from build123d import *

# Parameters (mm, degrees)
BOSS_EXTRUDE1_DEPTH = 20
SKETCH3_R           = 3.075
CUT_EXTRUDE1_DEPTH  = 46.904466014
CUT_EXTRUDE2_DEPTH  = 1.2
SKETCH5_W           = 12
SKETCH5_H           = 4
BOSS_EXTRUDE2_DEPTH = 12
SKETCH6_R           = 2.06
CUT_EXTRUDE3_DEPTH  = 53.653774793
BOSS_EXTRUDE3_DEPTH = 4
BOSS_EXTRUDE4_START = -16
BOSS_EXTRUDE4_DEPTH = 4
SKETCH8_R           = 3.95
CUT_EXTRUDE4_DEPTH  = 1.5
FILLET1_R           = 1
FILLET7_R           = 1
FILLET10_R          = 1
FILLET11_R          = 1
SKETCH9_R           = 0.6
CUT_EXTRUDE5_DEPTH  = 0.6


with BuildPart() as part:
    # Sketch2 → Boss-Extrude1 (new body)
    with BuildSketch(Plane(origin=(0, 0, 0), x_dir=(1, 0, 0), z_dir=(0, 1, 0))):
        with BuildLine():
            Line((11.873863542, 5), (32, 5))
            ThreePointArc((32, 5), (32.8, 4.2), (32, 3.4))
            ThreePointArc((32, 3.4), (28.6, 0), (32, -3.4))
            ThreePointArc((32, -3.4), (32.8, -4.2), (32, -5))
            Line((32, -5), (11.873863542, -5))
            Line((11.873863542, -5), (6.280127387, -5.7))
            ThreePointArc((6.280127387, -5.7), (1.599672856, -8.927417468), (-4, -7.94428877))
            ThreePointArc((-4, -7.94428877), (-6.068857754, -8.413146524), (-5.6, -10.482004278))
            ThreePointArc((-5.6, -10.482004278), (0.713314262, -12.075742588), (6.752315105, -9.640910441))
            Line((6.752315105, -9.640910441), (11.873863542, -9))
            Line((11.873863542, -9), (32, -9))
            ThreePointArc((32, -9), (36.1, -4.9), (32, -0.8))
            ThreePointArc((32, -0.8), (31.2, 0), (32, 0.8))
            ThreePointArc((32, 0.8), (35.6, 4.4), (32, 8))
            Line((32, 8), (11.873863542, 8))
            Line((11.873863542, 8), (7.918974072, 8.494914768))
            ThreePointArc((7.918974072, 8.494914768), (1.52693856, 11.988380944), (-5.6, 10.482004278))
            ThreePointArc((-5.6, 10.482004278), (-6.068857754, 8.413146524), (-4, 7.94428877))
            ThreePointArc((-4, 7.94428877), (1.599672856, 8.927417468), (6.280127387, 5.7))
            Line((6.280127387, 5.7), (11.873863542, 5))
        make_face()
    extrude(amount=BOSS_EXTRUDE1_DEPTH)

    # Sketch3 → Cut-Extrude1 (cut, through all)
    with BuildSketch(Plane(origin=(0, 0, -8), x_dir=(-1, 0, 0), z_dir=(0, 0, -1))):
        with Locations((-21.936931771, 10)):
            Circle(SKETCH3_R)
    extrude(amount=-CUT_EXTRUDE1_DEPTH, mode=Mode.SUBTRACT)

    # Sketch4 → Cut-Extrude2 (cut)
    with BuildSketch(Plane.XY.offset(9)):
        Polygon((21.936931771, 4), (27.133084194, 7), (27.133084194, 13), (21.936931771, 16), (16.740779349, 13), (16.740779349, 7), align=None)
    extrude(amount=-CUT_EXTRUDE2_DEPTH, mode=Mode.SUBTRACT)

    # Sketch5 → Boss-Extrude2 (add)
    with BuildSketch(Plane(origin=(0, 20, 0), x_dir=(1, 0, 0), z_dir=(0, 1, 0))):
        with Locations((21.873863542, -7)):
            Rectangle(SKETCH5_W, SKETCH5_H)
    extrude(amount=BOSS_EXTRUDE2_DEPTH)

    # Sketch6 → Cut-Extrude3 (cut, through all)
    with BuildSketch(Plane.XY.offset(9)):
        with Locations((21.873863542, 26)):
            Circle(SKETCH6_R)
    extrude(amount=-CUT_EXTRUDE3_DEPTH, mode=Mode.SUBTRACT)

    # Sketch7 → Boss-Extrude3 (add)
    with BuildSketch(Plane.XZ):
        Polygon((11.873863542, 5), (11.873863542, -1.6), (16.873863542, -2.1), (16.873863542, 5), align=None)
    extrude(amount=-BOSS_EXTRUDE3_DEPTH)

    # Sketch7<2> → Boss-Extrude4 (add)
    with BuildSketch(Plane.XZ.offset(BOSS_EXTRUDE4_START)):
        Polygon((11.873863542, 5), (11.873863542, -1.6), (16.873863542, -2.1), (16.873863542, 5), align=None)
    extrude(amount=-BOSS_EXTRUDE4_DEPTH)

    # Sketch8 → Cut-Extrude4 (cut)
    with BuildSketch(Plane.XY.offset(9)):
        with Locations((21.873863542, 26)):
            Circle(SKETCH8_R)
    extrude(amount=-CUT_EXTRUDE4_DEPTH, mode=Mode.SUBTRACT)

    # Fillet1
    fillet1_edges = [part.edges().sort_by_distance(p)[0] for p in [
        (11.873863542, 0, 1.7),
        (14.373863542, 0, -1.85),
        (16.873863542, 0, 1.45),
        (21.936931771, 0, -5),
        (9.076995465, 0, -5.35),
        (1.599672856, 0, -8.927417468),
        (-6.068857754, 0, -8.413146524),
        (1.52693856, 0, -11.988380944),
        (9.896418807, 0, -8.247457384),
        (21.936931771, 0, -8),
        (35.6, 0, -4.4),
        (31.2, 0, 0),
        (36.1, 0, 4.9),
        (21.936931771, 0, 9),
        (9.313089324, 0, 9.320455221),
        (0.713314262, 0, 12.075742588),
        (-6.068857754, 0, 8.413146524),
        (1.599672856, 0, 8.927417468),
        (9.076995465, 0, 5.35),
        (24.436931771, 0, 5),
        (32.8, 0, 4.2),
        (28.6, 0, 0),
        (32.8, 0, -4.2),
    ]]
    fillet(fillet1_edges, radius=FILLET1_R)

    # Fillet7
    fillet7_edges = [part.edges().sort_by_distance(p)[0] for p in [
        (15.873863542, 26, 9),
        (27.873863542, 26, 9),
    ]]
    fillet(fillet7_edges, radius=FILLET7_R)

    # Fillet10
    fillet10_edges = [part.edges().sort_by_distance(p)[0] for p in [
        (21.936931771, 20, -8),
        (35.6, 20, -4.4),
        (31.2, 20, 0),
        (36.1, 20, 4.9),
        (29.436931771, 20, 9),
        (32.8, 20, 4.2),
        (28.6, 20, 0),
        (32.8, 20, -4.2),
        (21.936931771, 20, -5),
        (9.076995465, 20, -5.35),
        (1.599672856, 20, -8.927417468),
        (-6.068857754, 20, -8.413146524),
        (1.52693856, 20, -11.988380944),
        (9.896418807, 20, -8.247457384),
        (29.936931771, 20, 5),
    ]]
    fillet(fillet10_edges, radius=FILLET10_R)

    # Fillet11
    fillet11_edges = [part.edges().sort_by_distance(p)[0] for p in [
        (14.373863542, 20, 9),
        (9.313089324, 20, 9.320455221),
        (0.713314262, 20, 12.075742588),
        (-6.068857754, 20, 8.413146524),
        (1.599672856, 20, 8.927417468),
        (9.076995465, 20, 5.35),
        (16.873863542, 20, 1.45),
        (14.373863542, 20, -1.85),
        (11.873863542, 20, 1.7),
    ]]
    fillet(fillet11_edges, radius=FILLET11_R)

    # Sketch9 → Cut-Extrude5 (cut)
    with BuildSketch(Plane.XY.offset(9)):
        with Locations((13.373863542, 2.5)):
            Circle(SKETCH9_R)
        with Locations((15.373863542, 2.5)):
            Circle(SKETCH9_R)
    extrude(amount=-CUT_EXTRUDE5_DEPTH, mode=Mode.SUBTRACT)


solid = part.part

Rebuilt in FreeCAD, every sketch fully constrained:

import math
import FreeCAD as App
import Part
import Sketcher

V = App.Vector
Q = App.Units.Quantity


def edges_at(feature, points):
    """Names of the edges that pass closest to the given points."""
    edges = feature.Shape.Edges
    near = lambda p: min(range(len(edges)), key=lambda i: edges[i].distToShape(Part.Vertex(*p))[0])
    return sorted({f"Edge{near(p) + 1}" for p in points})

doc = App.newDocument("Part")
body = doc.addObject("PartDesign::Body", "Body")

# Sketch on XZ plane
sketch1 = body.newObject("Sketcher::SketchObject", "Sketch")
sketch1.AttachmentSupport = (doc.getObject("XZ_Plane"), [""])
sketch1.MapMode = "FlatFace"
sketch1.addGeometry(Part.LineSegment(V(11.9, -5, 0), V(32, -5, 0)), False)
sketch1.addGeometry(Part.ArcOfCircle(Part.Circle(V(32, -4.2, 0), V(0, 0, 1), 0.8), math.radians(-90), math.radians(90)), False)
sketch1.addGeometry(Part.ArcOfCircle(Part.Circle(V(32, 0, 0), V(0, 0, 1), 3.4), math.radians(90), math.radians(270)), False)
sketch1.addGeometry(Part.ArcOfCircle(Part.Circle(V(32, 4.2, 0), V(0, 0, 1), 0.8), math.radians(-90), math.radians(90)), False)
sketch1.addGeometry(Part.LineSegment(V(32, 5, 0), V(11.9, 5, 0)), False)
sketch1.addGeometry(Part.LineSegment(V(11.9, 5, 0), V(6.3, 5.7, 0)), False)
sketch1.addGeometry(Part.ArcOfCircle(Part.Circle(V(0, 1.6, 0), V(0, 0, 1), 7.5), math.radians(33), math.radians(122)), False)
sketch1.addGeometry(Part.ArcOfCircle(Part.Circle(V(-4.8, 9.2, 0), V(0, 0, 1), 1.5), math.radians(122), math.radians(302)), False)
sketch1.addGeometry(Part.ArcOfCircle(Part.Circle(V(0, 1.6, 0), V(0, 0, 1), 10.5), math.radians(50), math.radians(122)), False)
sketch1.addGeometry(Part.LineSegment(V(6.8, 9.6, 0), V(11.9, 9, 0)), False)
sketch1.addGeometry(Part.LineSegment(V(11.9, 9, 0), V(32, 9, 0)), False)
sketch1.addGeometry(Part.ArcOfCircle(Part.Circle(V(32, 4.9, 0), V(0, 0, 1), 4.1), math.radians(-90), math.radians(90)), False)
sketch1.addGeometry(Part.ArcOfCircle(Part.Circle(V(32, 0, 0), V(0, 0, 1), 0.8), math.radians(90), math.radians(270)), False)
sketch1.addGeometry(Part.ArcOfCircle(Part.Circle(V(32, -4.4, 0), V(0, 0, 1), 3.6), math.radians(-90), math.radians(90)), False)
sketch1.addGeometry(Part.LineSegment(V(32, -8, 0), V(11.9, -8, 0)), False)
sketch1.addGeometry(Part.LineSegment(V(11.9, -8, 0), V(7.9, -8.5, 0)), False)
sketch1.addGeometry(Part.ArcOfCircle(Part.Circle(V(0, -1.6, 0), V(0, 0, 1), 10.5), math.radians(-122), math.radians(-41)), False)
sketch1.addGeometry(Part.ArcOfCircle(Part.Circle(V(-4.8, -9.2, 0), V(0, 0, 1), 1.5), math.radians(58), math.radians(238)), False)
sketch1.addGeometry(Part.ArcOfCircle(Part.Circle(V(0, -1.6, 0), V(0, 0, 1), 7.5), math.radians(-122), math.radians(-33)), False)
sketch1.addGeometry(Part.LineSegment(V(6.3, -5.7, 0), V(11.9, -5, 0)), False)
sketch1.addConstraint(Sketcher.Constraint("Tangent", 0, 2, 1, 1))
sketch1.addConstraint(Sketcher.Constraint("Tangent", 1, 2, 2, 2))
sketch1.addConstraint(Sketcher.Constraint("Tangent", 2, 1, 3, 1))
sketch1.addConstraint(Sketcher.Constraint("Tangent", 3, 2, 4, 1))
sketch1.addConstraint(Sketcher.Constraint("Coincident", 4, 2, 5, 1))
sketch1.addConstraint(Sketcher.Constraint("Coincident", 5, 2, 6, 1))
sketch1.addConstraint(Sketcher.Constraint("Tangent", 6, 2, 7, 2))
sketch1.addConstraint(Sketcher.Constraint("Tangent", 7, 1, 8, 2))
sketch1.addConstraint(Sketcher.Constraint("Coincident", 8, 1, 9, 1))
sketch1.addConstraint(Sketcher.Constraint("Coincident", 9, 2, 10, 1))
sketch1.addConstraint(Sketcher.Constraint("Tangent", 10, 2, 11, 2))
sketch1.addConstraint(Sketcher.Constraint("Tangent", 11, 1, 12, 1))
sketch1.addConstraint(Sketcher.Constraint("Tangent", 12, 2, 13, 2))
sketch1.addConstraint(Sketcher.Constraint("Tangent", 13, 1, 14, 1))
sketch1.addConstraint(Sketcher.Constraint("Coincident", 14, 2, 15, 1))
sketch1.addConstraint(Sketcher.Constraint("Coincident", 15, 2, 16, 2))
sketch1.addConstraint(Sketcher.Constraint("Tangent", 16, 1, 17, 2))
sketch1.addConstraint(Sketcher.Constraint("Tangent", 17, 1, 18, 1))
sketch1.addConstraint(Sketcher.Constraint("Coincident", 18, 2, 19, 1))
sketch1.addConstraint(Sketcher.Constraint("Coincident", 19, 2, 0, 1))
sketch1.addConstraint(Sketcher.Constraint("Horizontal", 0))
sketch1.addConstraint(Sketcher.Constraint("Horizontal", 4))
sketch1.addConstraint(Sketcher.Constraint("Horizontal", 10))
sketch1.addConstraint(Sketcher.Constraint("Horizontal", 14))
sketch1.addConstraint(Sketcher.Constraint("Coincident", 8, 3, 6, 3))
sketch1.addConstraint(Sketcher.Constraint("Coincident", 12, 3, 2, 3))
sketch1.addConstraint(Sketcher.Constraint("Coincident", 18, 3, 16, 3))
sketch1.addConstraint(Sketcher.Constraint("Equal", 1, 3))
sketch1.addConstraint(Sketcher.Constraint("Equal", 3, 12))
sketch1.addConstraint(Sketcher.Constraint("Equal", 8, 16))
sketch1.addConstraint(Sketcher.Constraint("Equal", 7, 17))
sketch1.addConstraint(Sketcher.Constraint("Symmetric", 6, 3, 16, 3, -1, 1))
sketch1.addConstraint(Sketcher.Constraint("Symmetric", 1, 3, 3, 3, -1))
sketch1.addConstraint(Sketcher.Constraint("Symmetric", 7, 3, 17, 3, -1))
sketch1.addConstraint(Sketcher.Constraint("Parallel", 5, 9))
sketch1.addConstraint(Sketcher.Constraint("Parallel", 15, 19))
sketch1.addConstraint(Sketcher.Constraint("Vertical", 1, 3, 2, 3))
sketch1.addConstraint(Sketcher.Constraint("Vertical", 3, 3, 11, 3))
sketch1.addConstraint(Sketcher.Constraint("Vertical", 12, 3, 13, 3))
sketch1.addConstraint(Sketcher.Constraint("Vertical", 4, 2, 9, 2))
sketch1.addConstraint(Sketcher.Constraint("Vertical", 9, 2, 14, 2))
sketch1.addConstraint(Sketcher.Constraint("Vertical", 5, 2, 18, 2))
sketch1.addConstraint(Sketcher.Constraint("Vertical", 14, 2, 19, 2))
sketch1.addConstraint(Sketcher.Constraint("Radius", 1, 0.8))
sketch1.addConstraint(Sketcher.Constraint("Radius", 2, 3.4))
sketch1.addConstraint(Sketcher.Constraint("Radius", 6, 7.5))
sketch1.addConstraint(Sketcher.Constraint("Radius", 7, 1.5))
sketch1.addConstraint(Sketcher.Constraint("Radius", 11, 4.1))
sketch1.addConstraint(Sketcher.Constraint("Radius", 13, 3.6))
sketch1.addConstraint(Sketcher.Constraint("DistanceX", -1, 1, 1, 3, 32.0))
sketch1.addConstraint(Sketcher.Constraint("DistanceX", 6, 2, -1, 1, 4.0))
sketch1.addConstraint(Sketcher.Constraint("DistanceY", -1, 1, 6, 3, 1.6))
sketch1.addConstraint(Sketcher.Constraint("DistanceY", -1, 1, 5, 2, 5.7))
sketch1.addConstraint(Sketcher.Constraint("DistanceX", 0, 1, 0, 2, 20.126136))
pad1 = body.newObject("PartDesign::Pad", "Pad")
pad1.Profile = sketch1
pad1.Length = 20
pad1.Reversed = True

# Sketch on XY plane
sketch2 = body.newObject("Sketcher::SketchObject", "Sketch001")
sketch2.AttachmentSupport = (doc.getObject("XY_Plane"), [""])
sketch2.MapMode = "FlatFace"
sketch2.AttachmentOffset = App.Placement(V(0, 0, -8), App.Rotation())
sketch2.addGeometry(Part.Circle(V(21.9, 10, 0), V(0, 0, 1), 3.1), False)
sketch2.addConstraint(Sketcher.Constraint("Diameter", 0, 6.15))
sketch2.addConstraint(Sketcher.Constraint("DistanceY", -1, 1, 0, 3, 10.0))
sketch2.addConstraint(Sketcher.Constraint("DistanceX", -1, 1, 0, 3, 21.936932))
pocket1 = body.newObject("PartDesign::Pocket", "Pocket")
pocket1.Profile = sketch2
pocket1.Type = "ThroughAll"
pocket1.Reversed = True

# Sketch on XY plane
sketch3 = body.newObject("Sketcher::SketchObject", "Sketch002")
sketch3.AttachmentSupport = (doc.getObject("XY_Plane"), [""])
sketch3.MapMode = "FlatFace"
sketch3.AttachmentOffset = App.Placement(V(0, 0, 9), App.Rotation())
sketch3.addGeometry(Part.LineSegment(V(22, 4, 0), V(27, 7, 0)), False)
sketch3.addGeometry(Part.LineSegment(V(27, 7, 0), V(27, 13, 0)), False)
sketch3.addGeometry(Part.LineSegment(V(27, 13, 0), V(22, 16, 0)), False)
sketch3.addGeometry(Part.LineSegment(V(22, 16, 0), V(17, 13, 0)), False)
sketch3.addGeometry(Part.LineSegment(V(17, 13, 0), V(17, 7, 0)), False)
sketch3.addGeometry(Part.LineSegment(V(17, 7, 0), V(22, 4, 0)), False)
sketch3.addConstraint(Sketcher.Constraint("Coincident", 0, 2, 1, 1))
sketch3.addConstraint(Sketcher.Constraint("Coincident", 1, 2, 2, 1))
sketch3.addConstraint(Sketcher.Constraint("Coincident", 2, 2, 3, 1))
sketch3.addConstraint(Sketcher.Constraint("Coincident", 3, 2, 4, 1))
sketch3.addConstraint(Sketcher.Constraint("Coincident", 4, 2, 5, 1))
sketch3.addConstraint(Sketcher.Constraint("Coincident", 5, 2, 0, 1))
sketch3.addConstraint(Sketcher.Constraint("Vertical", 1))
sketch3.addConstraint(Sketcher.Constraint("Vertical", 4))
sketch3.addConstraint(Sketcher.Constraint("Parallel", 0, 3))
sketch3.addConstraint(Sketcher.Constraint("Parallel", 2, 5))
sketch3.addConstraint(Sketcher.Constraint("Horizontal", 1, 2, 3, 2))
sketch3.addConstraint(Sketcher.Constraint("Horizontal", 0, 2, 4, 2))
sketch3.addConstraint(Sketcher.Constraint("Vertical", 2, 2, 5, 2))
sketch3.addConstraint(Sketcher.Constraint("DistanceY", 1, 1, 1, 2, 6.0))
sketch3.addConstraint(Sketcher.Constraint("Angle", 0, Q("30 deg")))
sketch3.addConstraint(Sketcher.Constraint("Distance", 0, 6.0))
sketch3.addConstraint(Sketcher.Constraint("DistanceY", -1, 1, 0, 2, 7.0))
sketch3.addConstraint(Sketcher.Constraint("DistanceX", -1, 1, 2, 2, 21.936932))
pocket2 = body.newObject("PartDesign::Pocket", "Pocket001")
pocket2.Profile = sketch3
pocket2.Length = 1.2

# Sketch on XZ plane
sketch4 = body.newObject("Sketcher::SketchObject", "Sketch003")
sketch4.AttachmentSupport = (doc.getObject("XZ_Plane"), [""])
sketch4.MapMode = "FlatFace"
sketch4.AttachmentOffset = App.Placement(V(0, 0, -20), App.Rotation())
sketch4.addGeometry(Part.LineSegment(V(15.9, 5, 0), V(15.9, 9, 0)), False)
sketch4.addGeometry(Part.LineSegment(V(15.9, 9, 0), V(27.9, 9, 0)), False)
sketch4.addGeometry(Part.LineSegment(V(27.9, 9, 0), V(27.9, 5, 0)), False)
sketch4.addGeometry(Part.LineSegment(V(27.9, 5, 0), V(15.9, 5, 0)), False)
sketch4.addConstraint(Sketcher.Constraint("Coincident", 0, 2, 1, 1))
sketch4.addConstraint(Sketcher.Constraint("Coincident", 1, 2, 2, 1))
sketch4.addConstraint(Sketcher.Constraint("Coincident", 2, 2, 3, 1))
sketch4.addConstraint(Sketcher.Constraint("Coincident", 3, 2, 0, 1))
sketch4.addConstraint(Sketcher.Constraint("Vertical", 0))
sketch4.addConstraint(Sketcher.Constraint("Horizontal", 1))
sketch4.addConstraint(Sketcher.Constraint("Vertical", 2))
sketch4.addConstraint(Sketcher.Constraint("Horizontal", 3))
sketch4.addConstraint(Sketcher.Constraint("DistanceX", 1, 1, 1, 2, 12.0))
sketch4.addConstraint(Sketcher.Constraint("DistanceY", 0, 1, 0, 2, 4.0))
sketch4.addConstraint(Sketcher.Constraint("DistanceY", -1, 1, 0, 2, 9.0))
sketch4.addConstraint(Sketcher.Constraint("DistanceX", -1, 1, 0, 2, 15.873864))
pad2 = body.newObject("PartDesign::Pad", "Pad001")
pad2.Profile = sketch4
pad2.Length = 12
pad2.Reversed = True

# Sketch on XY plane
sketch5 = body.newObject("Sketcher::SketchObject", "Sketch004")
sketch5.AttachmentSupport = (doc.getObject("XY_Plane"), [""])
sketch5.MapMode = "FlatFace"
sketch5.AttachmentOffset = App.Placement(V(0, 0, 9), App.Rotation())
sketch5.addGeometry(Part.Circle(V(21.9, 26, 0), V(0, 0, 1), 2.1), False)
sketch5.addConstraint(Sketcher.Constraint("Diameter", 0, 4.12))
sketch5.addConstraint(Sketcher.Constraint("DistanceY", -1, 1, 0, 3, 26.0))
sketch5.addConstraint(Sketcher.Constraint("DistanceX", -1, 1, 0, 3, 21.873864))
pocket3 = body.newObject("PartDesign::Pocket", "Pocket002")
pocket3.Profile = sketch5
pocket3.Type = "ThroughAll"

# Sketch on XZ plane
sketch6 = body.newObject("Sketcher::SketchObject", "Sketch005")
sketch6.AttachmentSupport = (doc.getObject("XZ_Plane"), [""])
sketch6.MapMode = "FlatFace"
sketch6.addGeometry(Part.LineSegment(V(11.9, 5, 0), V(11.9, -1.6, 0)), False)
sketch6.addGeometry(Part.LineSegment(V(11.9, -1.6, 0), V(16.9, -2.1, 0)), False)
sketch6.addGeometry(Part.LineSegment(V(16.9, -2.1, 0), V(16.9, 5, 0)), False)
sketch6.addGeometry(Part.LineSegment(V(16.9, 5, 0), V(11.9, 5, 0)), False)
sketch6.addConstraint(Sketcher.Constraint("Coincident", 0, 2, 1, 1))
sketch6.addConstraint(Sketcher.Constraint("Coincident", 1, 2, 2, 1))
sketch6.addConstraint(Sketcher.Constraint("Coincident", 2, 2, 3, 1))
sketch6.addConstraint(Sketcher.Constraint("Coincident", 3, 2, 0, 1))
sketch6.addConstraint(Sketcher.Constraint("Vertical", 0))
sketch6.addConstraint(Sketcher.Constraint("Vertical", 2))
sketch6.addConstraint(Sketcher.Constraint("Horizontal", 3))
sketch6.addConstraint(Sketcher.Constraint("DistanceX", 3, 2, 3, 1, 5.0))
sketch6.addConstraint(Sketcher.Constraint("DistanceY", 0, 2, 0, 1, 6.6))
sketch6.addConstraint(Sketcher.Constraint("DistanceY", 2, 1, 2, 2, 7.1))
sketch6.addConstraint(Sketcher.Constraint("DistanceY", -1, 1, 2, 2, 5.0))
sketch6.addConstraint(Sketcher.Constraint("DistanceX", -1, 1, 0, 2, 11.873864))
pad3 = body.newObject("PartDesign::Pad", "Pad002")
pad3.Profile = sketch6
pad3.Length = 4
pad3.Reversed = True

# Sketch on XZ plane
sketch7 = body.newObject("Sketcher::SketchObject", "Sketch006")
sketch7.AttachmentSupport = (doc.getObject("XZ_Plane"), [""])
sketch7.MapMode = "FlatFace"
sketch7.AttachmentOffset = App.Placement(V(0, 0, -16), App.Rotation())
sketch7.addGeometry(Part.LineSegment(V(11.9, 5, 0), V(11.9, -1.6, 0)), False)
sketch7.addGeometry(Part.LineSegment(V(11.9, -1.6, 0), V(16.9, -2.1, 0)), False)
sketch7.addGeometry(Part.LineSegment(V(16.9, -2.1, 0), V(16.9, 5, 0)), False)
sketch7.addGeometry(Part.LineSegment(V(16.9, 5, 0), V(11.9, 5, 0)), False)
sketch7.addConstraint(Sketcher.Constraint("Coincident", 0, 2, 1, 1))
sketch7.addConstraint(Sketcher.Constraint("Coincident", 1, 2, 2, 1))
sketch7.addConstraint(Sketcher.Constraint("Coincident", 2, 2, 3, 1))
sketch7.addConstraint(Sketcher.Constraint("Coincident", 3, 2, 0, 1))
sketch7.addConstraint(Sketcher.Constraint("Vertical", 0))
sketch7.addConstraint(Sketcher.Constraint("Vertical", 2))
sketch7.addConstraint(Sketcher.Constraint("Horizontal", 3))
sketch7.addConstraint(Sketcher.Constraint("DistanceX", 3, 2, 3, 1, 5.0))
sketch7.addConstraint(Sketcher.Constraint("DistanceY", 0, 2, 0, 1, 6.6))
sketch7.addConstraint(Sketcher.Constraint("DistanceY", 2, 1, 2, 2, 7.1))
sketch7.addConstraint(Sketcher.Constraint("DistanceY", -1, 1, 2, 2, 5.0))
sketch7.addConstraint(Sketcher.Constraint("DistanceX", -1, 1, 0, 2, 11.873864))
pad4 = body.newObject("PartDesign::Pad", "Pad003")
pad4.Profile = sketch7
pad4.Length = 4
pad4.Reversed = True

# Sketch on XY plane
sketch8 = body.newObject("Sketcher::SketchObject", "Sketch007")
sketch8.AttachmentSupport = (doc.getObject("XY_Plane"), [""])
sketch8.MapMode = "FlatFace"
sketch8.AttachmentOffset = App.Placement(V(0, 0, 9), App.Rotation())
sketch8.addGeometry(Part.Circle(V(21.9, 26, 0), V(0, 0, 1), 4), False)
sketch8.addConstraint(Sketcher.Constraint("Diameter", 0, 7.9))
sketch8.addConstraint(Sketcher.Constraint("DistanceY", -1, 1, 0, 3, 26.0))
sketch8.addConstraint(Sketcher.Constraint("DistanceX", -1, 1, 0, 3, 21.873864))
pocket4 = body.newObject("PartDesign::Pocket", "Pocket003")
pocket4.Profile = sketch8
pocket4.Length = 1.5
doc.recompute()

fillet = body.newObject("PartDesign::Fillet", "Fillet")
fillet.Base = (pocket4, edges_at(pocket4, [
    (11.874, 0, 1.7),
    (14.374, 0, -1.85),
    (16.874, 0, 1.45),
    (21.937, 0, -5),
    (9.077, 0, -5.35),
    (1.6, 0, -8.927),
    (-6.069, 0, -8.413),
    (1.527, 0, -11.988),
    (9.896, 0, -8.247),
    (21.937, 0, -8),
    (35.6, 0, -4.4),
    (31.2, 0, 0),
    (36.1, 0, 4.9),
    (21.937, 0, 9),
    (9.313, 0, 9.32),
    (0.713, 0, 12.076),
    (-6.069, 0, 8.413),
    (1.6, 0, 8.927),
    (9.077, 0, 5.35),
    (24.437, 0, 5),
    (32.8, 0, 4.2),
    (28.6, 0, 0),
    (32.8, 0, -4.2),
]))
fillet.Radius = 1
doc.recompute()

fillet2 = body.newObject("PartDesign::Fillet", "Fillet001")
fillet2.Base = (fillet, edges_at(fillet, [(15.874, 26, 9), (27.874, 26, 9)]))
fillet2.Radius = 1
doc.recompute()

fillet3 = body.newObject("PartDesign::Fillet", "Fillet002")
fillet3.Base = (fillet2, edges_at(fillet2, [
    (21.937, 20, -8),
    (35.6, 20, -4.4),
    (31.2, 20, 0),
    (36.1, 20, 4.9),
    (29.437, 20, 9),
    (32.8, 20, 4.2),
    (28.6, 20, 0),
    (32.8, 20, -4.2),
    (21.937, 20, -5),
    (9.077, 20, -5.35),
    (1.6, 20, -8.927),
    (-6.069, 20, -8.413),
    (1.527, 20, -11.988),
    (9.896, 20, -8.247),
    (29.937, 20, 5),
]))
fillet3.Radius = 1
doc.recompute()

fillet4 = body.newObject("PartDesign::Fillet", "Fillet003")
fillet4.Base = (fillet3, edges_at(fillet3, [
    (14.374, 20, 9),
    (9.313, 20, 9.32),
    (0.713, 20, 12.076),
    (-6.069, 20, 8.413),
    (1.6, 20, 8.927),
    (9.077, 20, 5.35),
    (16.874, 20, 1.45),
    (14.374, 20, -1.85),
    (11.874, 20, 1.7),
]))
fillet4.Radius = 1

# Sketch on XY plane
sketch9 = body.newObject("Sketcher::SketchObject", "Sketch008")
sketch9.AttachmentSupport = (doc.getObject("XY_Plane"), [""])
sketch9.MapMode = "FlatFace"
sketch9.AttachmentOffset = App.Placement(V(0, 0, 9), App.Rotation())
sketch9.addGeometry(Part.Circle(V(13.4, 2.5, 0), V(0, 0, 1), 0.6), False)
sketch9.addGeometry(Part.Circle(V(15.4, 2.5, 0), V(0, 0, 1), 0.6), False)
sketch9.addConstraint(Sketcher.Constraint("Equal", 0, 1))
sketch9.addConstraint(Sketcher.Constraint("Horizontal", 0, 3, 1, 3))
sketch9.addConstraint(Sketcher.Constraint("Diameter", 0, 1.2))
sketch9.addConstraint(Sketcher.Constraint("DistanceX", 0, 3, 1, 3, 2.0))
sketch9.addConstraint(Sketcher.Constraint("DistanceY", -1, 1, 0, 3, 2.5))
sketch9.addConstraint(Sketcher.Constraint("DistanceX", -1, 1, 0, 3, 13.373864))
pocket5 = body.newObject("PartDesign::Pocket", "Pocket004")
pocket5.Profile = sketch9
pocket5.Length = 0.6

doc.recompute()
